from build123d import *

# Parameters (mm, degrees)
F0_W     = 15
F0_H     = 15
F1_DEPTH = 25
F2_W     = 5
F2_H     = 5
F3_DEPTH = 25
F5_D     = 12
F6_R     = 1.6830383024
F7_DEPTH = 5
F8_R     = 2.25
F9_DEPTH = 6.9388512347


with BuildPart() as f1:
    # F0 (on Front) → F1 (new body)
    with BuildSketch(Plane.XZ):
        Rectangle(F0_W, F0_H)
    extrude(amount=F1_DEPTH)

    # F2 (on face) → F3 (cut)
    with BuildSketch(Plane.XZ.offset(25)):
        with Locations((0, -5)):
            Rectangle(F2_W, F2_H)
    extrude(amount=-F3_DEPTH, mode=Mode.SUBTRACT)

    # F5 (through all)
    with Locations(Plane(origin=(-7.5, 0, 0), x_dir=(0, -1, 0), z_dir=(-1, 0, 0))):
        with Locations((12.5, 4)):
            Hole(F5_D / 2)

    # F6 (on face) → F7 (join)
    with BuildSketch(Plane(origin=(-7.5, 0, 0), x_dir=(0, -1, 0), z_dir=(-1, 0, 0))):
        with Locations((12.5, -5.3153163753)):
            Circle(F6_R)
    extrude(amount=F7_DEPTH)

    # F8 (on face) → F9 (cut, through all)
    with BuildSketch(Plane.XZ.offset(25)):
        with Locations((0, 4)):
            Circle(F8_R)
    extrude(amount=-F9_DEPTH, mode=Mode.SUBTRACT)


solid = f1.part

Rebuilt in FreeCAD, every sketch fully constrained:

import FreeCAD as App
import Part
import Sketcher
from FreeCAD import Vector
Q = App.Units.Quantity


def add_polygon(sketch, points):
    """Adds a closed chain of lines whose ends are joined by coincident constraints."""
    first, n = sketch.GeometryCount, len(points)
    for a, b in zip(points, points[1:] + points[:1]):
        sketch.addGeometry(Part.LineSegment(App.Vector(*a, 0), App.Vector(*b, 0)), False)
    for i in range(n):
        sketch.addConstraint(Sketcher.Constraint("Coincident", first + i, 2, first + (i + 1) % n, 1))

doc = App.newDocument("Part")
body = doc.addObject("PartDesign::Body", "Body")

sketch1 = doc.addObject("Sketcher::SketchObject", "Sketch")
body.addObject(sketch1)
sketch1.AttachmentSupport = (doc.XZ_Plane, [""])
sketch1.MapMode = "FlatFace"
add_polygon(sketch1, [(-8, 8), (-8, -8), (8, -8), (8, 8)])
sketch1.addConstraint([
    Sketcher.Constraint("Vertical", 0),
    Sketcher.Constraint("Horizontal", 1),
    Sketcher.Constraint("Vertical", 2),
    Sketcher.Constraint("Horizontal", 3),
    Sketcher.Constraint("Symmetric", 0, 2, 2, 2, -1, 1),
    Sketcher.Constraint("Equal", 3, 0),
    Sketcher.Constraint("DistanceX", 1, 1, 1, 2, Q("15 mm")),
])
pad1 = doc.addObject("PartDesign::Pad", "Pad")
body.addObject(pad1)
pad1.Profile = sketch1
pad1.Length = 25

sketch2 = doc.addObject("Sketcher::SketchObject", "Sketch001")
body.addObject(sketch2)
sketch2.AttachmentSupport = (doc.XZ_Plane, [""])
sketch2.MapMode = "FlatFace"
sketch2.AttachmentOffset = App.Placement(Vector(0, 0, 25), App.Rotation())
add_polygon(sketch2, [(-2, -2), (-2, -8), (2, -8), (2, -2)])
sketch2.addConstraint([
    Sketcher.Constraint("Vertical", 0),
    Sketcher.Constraint("Horizontal", 1),
    Sketcher.Constraint("Vertical", 2),
    Sketcher.Constraint("Horizontal", 3),
    Sketcher.Constraint("Equal", 3, 0),
    Sketcher.Constraint("DistanceX", 1, 1, 1, 2, Q("5 mm")),
    Sketcher.Constraint("DistanceX", 0, 2, -1, 1, Q("2.5 mm")),
    Sketcher.Constraint("DistanceY", 0, 2, -1, 1, Q("7.5 mm")),
])
pocket1 = doc.addObject("PartDesign::Pocket", "Pocket")
body.addObject(pocket1)
pocket1.Profile = sketch2
pocket1.Length = 25

sketch3 = doc.addObject("Sketcher::SketchObject", "Sketch002")
body.addObject(sketch3)
sketch3.AttachmentSupport = (doc.YZ_Plane, [""])
sketch3.MapMode = "FlatFace"
sketch3.AttachmentOffset = App.Placement(Vector(0, 0, -7.5), App.Rotation())
sketch3.addGeometry(Part.Circle(Vector(-12, 4, 0), Vector(0, 0, 1), 6), False)
sketch3.addConstraint([
    Sketcher.Constraint("Diameter", 0, Q("12 mm")),
    Sketcher.Constraint("DistanceY", -1, 1, 0, 3, Q("4 mm")),
    Sketcher.Constraint("DistanceX", 0, 3, -1, 1, Q("12.5 mm")),
])
doc.recompute()
hole = doc.addObject("PartDesign::Hole", "Hole")
body.addObject(hole)
hole.Profile = sketch3
hole.ThreadType = "None"
hole.Diameter = 12
hole.DepthType = "ThroughAll"
hole.Reversed = True

sketch4 = doc.addObject("Sketcher::SketchObject", "Sketch003")
body.addObject(sketch4)
sketch4.AttachmentSupport = (doc.YZ_Plane, [""])
sketch4.MapMode = "FlatFace"
sketch4.AttachmentOffset = App.Placement(Vector(0, 0, -7.5), App.Rotation())
sketch4.addGeometry(Part.Circle(Vector(-12.5, -5.3, 0), Vector(0, 0, 1), 1.7), False)
sketch4.addConstraint([
    Sketcher.Constraint("DistanceX", 0, 3, -1, 1, Q("12.5 mm")),
    Sketcher.Constraint("Diameter", 0, Q("3.366077 mm")),
    Sketcher.Constraint("DistanceY", 0, 3, -1, 1, Q("5.315316 mm")),
])
pad2 = doc.addObject("PartDesign::Pad", "Pad001")
body.addObject(pad2)
pad2.Profile = sketch4
pad2.Length = 5
pad2.Reversed = True

sketch5 = doc.addObject("Sketcher::SketchObject", "Sketch004")
body.addObject(sketch5)
sketch5.AttachmentSupport = (doc.XZ_Plane, [""])
sketch5.MapMode = "FlatFace"
sketch5.AttachmentOffset = App.Placement(Vector(0, 0, 25), App.Rotation())
sketch5.addGeometry(Part.Circle(Vector(0, 4, 0), Vector(0, 0, 1), 2.2), False)
sketch5.addConstraint([
    Sketcher.Constraint("PointOnObject", 0, 3, -2),
    Sketcher.Constraint("Diameter", 0, Q("4.5 mm")),
    Sketcher.Constraint("DistanceY", -1, 1, 0, 3, Q("4 mm")),
])
pocket2 = doc.addObject("PartDesign::Pocket", "Pocket001")
body.addObject(pocket2)
pocket2.Profile = sketch5
pocket2.Length = 6.938851

doc.recompute()
